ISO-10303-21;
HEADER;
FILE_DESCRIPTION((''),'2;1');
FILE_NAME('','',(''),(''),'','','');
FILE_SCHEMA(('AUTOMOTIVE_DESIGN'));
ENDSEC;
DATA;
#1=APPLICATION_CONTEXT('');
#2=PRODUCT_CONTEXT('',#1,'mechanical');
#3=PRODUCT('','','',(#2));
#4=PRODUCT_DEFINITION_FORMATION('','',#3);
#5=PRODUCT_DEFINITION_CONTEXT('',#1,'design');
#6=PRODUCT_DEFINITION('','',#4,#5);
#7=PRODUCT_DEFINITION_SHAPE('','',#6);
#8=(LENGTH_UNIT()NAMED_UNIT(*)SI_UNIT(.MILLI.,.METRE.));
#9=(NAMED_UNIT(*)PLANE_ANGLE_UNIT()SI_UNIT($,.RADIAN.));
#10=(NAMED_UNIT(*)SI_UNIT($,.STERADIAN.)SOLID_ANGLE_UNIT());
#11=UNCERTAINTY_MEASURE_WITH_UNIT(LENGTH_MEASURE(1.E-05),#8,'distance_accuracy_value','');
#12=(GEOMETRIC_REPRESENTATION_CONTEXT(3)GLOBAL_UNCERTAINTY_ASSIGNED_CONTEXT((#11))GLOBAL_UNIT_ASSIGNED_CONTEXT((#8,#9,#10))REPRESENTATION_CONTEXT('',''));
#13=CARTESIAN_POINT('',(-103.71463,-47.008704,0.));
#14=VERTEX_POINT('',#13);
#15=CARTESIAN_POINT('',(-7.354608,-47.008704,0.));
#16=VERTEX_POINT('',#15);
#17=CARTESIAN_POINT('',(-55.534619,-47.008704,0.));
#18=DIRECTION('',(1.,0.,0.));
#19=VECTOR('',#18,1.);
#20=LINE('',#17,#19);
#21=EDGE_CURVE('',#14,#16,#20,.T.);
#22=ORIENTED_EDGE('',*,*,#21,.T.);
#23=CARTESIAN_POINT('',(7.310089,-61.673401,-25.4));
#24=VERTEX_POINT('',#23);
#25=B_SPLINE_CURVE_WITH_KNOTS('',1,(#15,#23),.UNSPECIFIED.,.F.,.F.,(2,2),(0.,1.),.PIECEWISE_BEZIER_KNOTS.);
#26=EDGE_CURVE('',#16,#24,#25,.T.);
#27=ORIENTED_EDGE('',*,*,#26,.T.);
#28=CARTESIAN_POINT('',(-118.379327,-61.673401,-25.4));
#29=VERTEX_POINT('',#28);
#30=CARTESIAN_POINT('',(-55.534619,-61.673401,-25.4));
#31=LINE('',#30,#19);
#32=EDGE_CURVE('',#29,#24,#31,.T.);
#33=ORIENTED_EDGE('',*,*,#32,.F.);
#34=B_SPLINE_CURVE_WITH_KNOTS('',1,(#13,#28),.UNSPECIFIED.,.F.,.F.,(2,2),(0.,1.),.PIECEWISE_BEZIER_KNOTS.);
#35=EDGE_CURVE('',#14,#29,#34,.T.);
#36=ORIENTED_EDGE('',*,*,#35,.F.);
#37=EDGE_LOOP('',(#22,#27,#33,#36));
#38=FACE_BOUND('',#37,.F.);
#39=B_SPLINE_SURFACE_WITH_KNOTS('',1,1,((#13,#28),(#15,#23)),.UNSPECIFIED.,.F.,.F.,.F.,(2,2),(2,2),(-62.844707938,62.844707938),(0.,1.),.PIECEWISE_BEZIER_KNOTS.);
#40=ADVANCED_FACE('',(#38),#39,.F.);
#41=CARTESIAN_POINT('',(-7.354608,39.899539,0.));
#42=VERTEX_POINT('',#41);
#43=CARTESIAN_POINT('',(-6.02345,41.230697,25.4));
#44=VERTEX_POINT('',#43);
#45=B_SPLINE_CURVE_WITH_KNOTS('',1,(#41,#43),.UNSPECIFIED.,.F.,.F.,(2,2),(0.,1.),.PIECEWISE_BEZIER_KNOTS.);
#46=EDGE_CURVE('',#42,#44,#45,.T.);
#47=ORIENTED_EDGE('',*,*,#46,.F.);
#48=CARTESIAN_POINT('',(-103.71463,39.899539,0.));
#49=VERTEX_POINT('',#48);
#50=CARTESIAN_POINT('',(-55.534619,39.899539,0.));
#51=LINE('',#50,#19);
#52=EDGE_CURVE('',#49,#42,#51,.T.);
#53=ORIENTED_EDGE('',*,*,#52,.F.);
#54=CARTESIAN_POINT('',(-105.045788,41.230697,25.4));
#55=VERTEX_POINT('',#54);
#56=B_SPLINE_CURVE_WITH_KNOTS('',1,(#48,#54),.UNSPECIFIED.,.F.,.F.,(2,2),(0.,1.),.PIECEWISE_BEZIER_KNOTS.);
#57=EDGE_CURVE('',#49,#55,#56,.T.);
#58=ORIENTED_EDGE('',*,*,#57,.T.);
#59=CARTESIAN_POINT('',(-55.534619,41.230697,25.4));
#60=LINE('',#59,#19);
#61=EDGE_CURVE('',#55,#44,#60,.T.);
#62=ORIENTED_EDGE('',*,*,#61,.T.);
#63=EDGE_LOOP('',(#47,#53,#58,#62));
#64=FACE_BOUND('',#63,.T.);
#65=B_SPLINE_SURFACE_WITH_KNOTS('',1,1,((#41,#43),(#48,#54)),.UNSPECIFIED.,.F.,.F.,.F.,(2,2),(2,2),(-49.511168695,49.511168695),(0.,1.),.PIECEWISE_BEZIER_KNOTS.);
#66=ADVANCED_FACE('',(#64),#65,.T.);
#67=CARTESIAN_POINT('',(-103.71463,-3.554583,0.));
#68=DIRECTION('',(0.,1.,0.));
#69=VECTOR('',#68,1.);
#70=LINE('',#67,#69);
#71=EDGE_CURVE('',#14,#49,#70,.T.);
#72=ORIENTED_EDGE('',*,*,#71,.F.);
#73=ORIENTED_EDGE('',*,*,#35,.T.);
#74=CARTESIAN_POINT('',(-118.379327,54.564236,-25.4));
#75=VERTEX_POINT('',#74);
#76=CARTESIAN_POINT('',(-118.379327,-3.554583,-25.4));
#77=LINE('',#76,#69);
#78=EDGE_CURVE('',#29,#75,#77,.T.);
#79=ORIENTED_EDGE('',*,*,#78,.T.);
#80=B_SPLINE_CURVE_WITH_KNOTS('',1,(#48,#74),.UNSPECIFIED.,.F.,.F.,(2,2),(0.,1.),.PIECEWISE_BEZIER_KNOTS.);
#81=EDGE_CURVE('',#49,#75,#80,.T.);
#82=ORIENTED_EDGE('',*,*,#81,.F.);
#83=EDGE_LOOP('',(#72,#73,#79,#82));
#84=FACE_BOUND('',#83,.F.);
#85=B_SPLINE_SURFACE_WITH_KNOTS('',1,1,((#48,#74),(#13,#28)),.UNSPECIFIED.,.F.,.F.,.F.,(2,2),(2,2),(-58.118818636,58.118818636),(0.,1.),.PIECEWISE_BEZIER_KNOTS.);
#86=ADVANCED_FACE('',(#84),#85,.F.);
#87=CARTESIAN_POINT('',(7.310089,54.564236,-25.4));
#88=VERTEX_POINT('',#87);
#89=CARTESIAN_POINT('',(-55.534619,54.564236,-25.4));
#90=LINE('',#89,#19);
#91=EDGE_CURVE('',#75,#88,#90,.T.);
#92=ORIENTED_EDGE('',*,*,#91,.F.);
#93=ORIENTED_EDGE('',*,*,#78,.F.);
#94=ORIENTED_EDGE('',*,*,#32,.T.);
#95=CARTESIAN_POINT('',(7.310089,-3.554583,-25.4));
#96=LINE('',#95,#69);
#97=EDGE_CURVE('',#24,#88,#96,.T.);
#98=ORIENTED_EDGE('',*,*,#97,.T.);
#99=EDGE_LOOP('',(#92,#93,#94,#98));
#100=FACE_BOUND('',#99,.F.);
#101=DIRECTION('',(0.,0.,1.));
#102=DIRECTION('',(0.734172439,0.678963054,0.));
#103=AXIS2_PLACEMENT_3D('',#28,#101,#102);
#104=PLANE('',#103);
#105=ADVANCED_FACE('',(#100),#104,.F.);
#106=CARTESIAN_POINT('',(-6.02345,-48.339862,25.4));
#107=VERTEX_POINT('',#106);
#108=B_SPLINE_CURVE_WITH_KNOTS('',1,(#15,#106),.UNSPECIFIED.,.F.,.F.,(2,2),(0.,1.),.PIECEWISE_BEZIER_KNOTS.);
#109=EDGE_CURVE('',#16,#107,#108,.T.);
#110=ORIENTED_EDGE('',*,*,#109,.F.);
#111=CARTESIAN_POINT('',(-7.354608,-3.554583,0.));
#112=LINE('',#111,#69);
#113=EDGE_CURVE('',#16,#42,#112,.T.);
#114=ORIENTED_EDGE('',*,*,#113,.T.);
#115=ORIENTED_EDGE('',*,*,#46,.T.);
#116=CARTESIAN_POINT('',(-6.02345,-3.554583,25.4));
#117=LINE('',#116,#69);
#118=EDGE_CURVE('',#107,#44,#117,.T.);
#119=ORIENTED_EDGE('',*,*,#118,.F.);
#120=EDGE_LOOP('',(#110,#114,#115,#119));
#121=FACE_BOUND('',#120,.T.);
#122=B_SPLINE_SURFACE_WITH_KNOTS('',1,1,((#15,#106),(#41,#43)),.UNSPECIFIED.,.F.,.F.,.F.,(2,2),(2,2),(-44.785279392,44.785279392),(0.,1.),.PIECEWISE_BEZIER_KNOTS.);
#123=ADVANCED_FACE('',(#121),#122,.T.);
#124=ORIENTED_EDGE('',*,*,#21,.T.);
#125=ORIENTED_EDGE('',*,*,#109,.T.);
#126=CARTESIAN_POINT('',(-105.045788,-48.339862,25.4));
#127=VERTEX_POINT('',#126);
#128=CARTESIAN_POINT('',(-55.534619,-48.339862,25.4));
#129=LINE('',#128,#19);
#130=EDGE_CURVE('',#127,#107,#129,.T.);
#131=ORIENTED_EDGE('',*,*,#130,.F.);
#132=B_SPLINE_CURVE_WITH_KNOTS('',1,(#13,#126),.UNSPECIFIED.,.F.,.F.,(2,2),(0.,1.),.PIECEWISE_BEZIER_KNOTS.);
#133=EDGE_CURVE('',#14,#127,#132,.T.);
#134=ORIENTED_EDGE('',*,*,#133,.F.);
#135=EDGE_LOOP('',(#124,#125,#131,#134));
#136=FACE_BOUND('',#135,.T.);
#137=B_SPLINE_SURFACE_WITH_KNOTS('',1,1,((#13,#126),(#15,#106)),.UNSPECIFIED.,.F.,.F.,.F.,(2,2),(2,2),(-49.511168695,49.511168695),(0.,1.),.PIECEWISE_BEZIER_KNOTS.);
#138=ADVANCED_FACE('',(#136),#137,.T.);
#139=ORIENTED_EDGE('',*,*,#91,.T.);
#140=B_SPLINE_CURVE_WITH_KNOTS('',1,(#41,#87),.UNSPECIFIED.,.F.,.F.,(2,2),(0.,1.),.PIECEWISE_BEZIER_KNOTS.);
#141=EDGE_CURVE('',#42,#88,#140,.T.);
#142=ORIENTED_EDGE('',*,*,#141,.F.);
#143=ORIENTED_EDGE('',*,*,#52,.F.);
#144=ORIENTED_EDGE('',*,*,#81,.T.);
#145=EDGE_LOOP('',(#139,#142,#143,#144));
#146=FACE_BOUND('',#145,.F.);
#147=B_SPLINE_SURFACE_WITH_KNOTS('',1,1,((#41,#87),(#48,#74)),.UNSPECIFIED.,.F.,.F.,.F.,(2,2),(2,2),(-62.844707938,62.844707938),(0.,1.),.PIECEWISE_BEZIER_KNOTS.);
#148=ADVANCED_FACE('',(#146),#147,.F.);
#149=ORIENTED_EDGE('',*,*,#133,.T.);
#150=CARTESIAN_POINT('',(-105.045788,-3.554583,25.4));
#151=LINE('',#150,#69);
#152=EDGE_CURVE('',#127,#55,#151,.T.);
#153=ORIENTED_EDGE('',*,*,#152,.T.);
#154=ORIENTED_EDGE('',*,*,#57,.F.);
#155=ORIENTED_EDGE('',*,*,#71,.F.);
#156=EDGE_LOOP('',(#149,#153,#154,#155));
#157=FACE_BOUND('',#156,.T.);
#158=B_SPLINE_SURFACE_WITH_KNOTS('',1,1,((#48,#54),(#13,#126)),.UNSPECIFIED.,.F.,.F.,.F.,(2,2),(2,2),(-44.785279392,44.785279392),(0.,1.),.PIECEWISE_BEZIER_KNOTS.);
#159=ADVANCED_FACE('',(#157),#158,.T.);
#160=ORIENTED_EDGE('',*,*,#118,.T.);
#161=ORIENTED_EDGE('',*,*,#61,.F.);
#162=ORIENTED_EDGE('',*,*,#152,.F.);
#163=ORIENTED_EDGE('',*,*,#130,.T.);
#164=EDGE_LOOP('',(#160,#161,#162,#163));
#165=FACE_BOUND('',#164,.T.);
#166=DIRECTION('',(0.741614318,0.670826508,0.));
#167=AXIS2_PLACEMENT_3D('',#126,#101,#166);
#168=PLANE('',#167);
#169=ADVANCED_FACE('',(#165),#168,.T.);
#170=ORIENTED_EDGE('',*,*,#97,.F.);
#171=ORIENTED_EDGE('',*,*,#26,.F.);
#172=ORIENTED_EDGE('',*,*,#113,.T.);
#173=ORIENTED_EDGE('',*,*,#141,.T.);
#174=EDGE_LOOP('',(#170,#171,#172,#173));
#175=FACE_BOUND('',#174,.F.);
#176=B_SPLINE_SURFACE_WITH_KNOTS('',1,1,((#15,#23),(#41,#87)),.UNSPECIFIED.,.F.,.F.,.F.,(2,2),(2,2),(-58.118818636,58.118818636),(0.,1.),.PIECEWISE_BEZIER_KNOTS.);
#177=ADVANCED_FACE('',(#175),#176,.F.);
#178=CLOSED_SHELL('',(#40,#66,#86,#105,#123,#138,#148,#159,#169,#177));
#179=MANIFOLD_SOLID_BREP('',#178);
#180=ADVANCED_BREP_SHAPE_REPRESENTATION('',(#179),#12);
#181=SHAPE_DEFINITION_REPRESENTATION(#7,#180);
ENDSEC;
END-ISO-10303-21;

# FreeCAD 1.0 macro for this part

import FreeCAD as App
import Part
import Sketcher
from FreeCAD import Vector
Q = App.Units.Quantity


def add_polygon(sketch, points):
    """Adds a closed chain of lines whose ends are joined by coincident constraints."""
    first, n = sketch.GeometryCount, len(points)
    for a, b in zip(points, points[1:] + points[:1]):
        sketch.addGeometry(Part.LineSegment(App.Vector(*a, 0), App.Vector(*b, 0)), False)
    for i in range(n):
        sketch.addConstraint(Sketcher.Constraint("Coincident", first + i, 2, first + (i + 1) % n, 1))

doc = App.newDocument("Part")
body = doc.addObject("PartDesign::Body", "Body")

sketch1 = body.newObject("Sketcher::SketchObject", "Sketch")
sketch1.AttachmentSupport = (doc.getObject("XY_Plane"), [""])
sketch1.MapMode = "FlatFace"
add_polygon(sketch1, [(-104, 40), (-104, -47), (-7, -47), (-7, 40)])
sketch1.addConstraint(Sketcher.Constraint("Vertical", 0))
sketch1.addConstraint(Sketcher.Constraint("Horizontal", 1))
sketch1.addConstraint(Sketcher.Constraint("Vertical", 2))
sketch1.addConstraint(Sketcher.Constraint("Horizontal", 3))
sketch1.addConstraint(Sketcher.Constraint("DistanceX", 1, 1, 1, 2, 96.360022))
sketch1.addConstraint(Sketcher.Constraint("DistanceY", 0, 2, 0, 1, 86.908244))
sketch1.addConstraint(Sketcher.Constraint("DistanceX", 0, 2, -1, 1, 103.71463))
sketch1.addConstraint(Sketcher.Constraint("DistanceY", -1, 1, 2, 2, 39.899539))
pad1 = body.newObject("PartDesign::Pad", "Pad")
pad1.Profile = sketch1
pad1.Length = Q("1 in")
pad1.TaperAngle = 3
pad2 = body.newObject("PartDesign::Pad", "Pad001")
pad2.Profile = sketch1
pad2.Length = Q("1 in")
pad2.Reversed = True
pad2.TaperAngle = 30

doc.recompute()
